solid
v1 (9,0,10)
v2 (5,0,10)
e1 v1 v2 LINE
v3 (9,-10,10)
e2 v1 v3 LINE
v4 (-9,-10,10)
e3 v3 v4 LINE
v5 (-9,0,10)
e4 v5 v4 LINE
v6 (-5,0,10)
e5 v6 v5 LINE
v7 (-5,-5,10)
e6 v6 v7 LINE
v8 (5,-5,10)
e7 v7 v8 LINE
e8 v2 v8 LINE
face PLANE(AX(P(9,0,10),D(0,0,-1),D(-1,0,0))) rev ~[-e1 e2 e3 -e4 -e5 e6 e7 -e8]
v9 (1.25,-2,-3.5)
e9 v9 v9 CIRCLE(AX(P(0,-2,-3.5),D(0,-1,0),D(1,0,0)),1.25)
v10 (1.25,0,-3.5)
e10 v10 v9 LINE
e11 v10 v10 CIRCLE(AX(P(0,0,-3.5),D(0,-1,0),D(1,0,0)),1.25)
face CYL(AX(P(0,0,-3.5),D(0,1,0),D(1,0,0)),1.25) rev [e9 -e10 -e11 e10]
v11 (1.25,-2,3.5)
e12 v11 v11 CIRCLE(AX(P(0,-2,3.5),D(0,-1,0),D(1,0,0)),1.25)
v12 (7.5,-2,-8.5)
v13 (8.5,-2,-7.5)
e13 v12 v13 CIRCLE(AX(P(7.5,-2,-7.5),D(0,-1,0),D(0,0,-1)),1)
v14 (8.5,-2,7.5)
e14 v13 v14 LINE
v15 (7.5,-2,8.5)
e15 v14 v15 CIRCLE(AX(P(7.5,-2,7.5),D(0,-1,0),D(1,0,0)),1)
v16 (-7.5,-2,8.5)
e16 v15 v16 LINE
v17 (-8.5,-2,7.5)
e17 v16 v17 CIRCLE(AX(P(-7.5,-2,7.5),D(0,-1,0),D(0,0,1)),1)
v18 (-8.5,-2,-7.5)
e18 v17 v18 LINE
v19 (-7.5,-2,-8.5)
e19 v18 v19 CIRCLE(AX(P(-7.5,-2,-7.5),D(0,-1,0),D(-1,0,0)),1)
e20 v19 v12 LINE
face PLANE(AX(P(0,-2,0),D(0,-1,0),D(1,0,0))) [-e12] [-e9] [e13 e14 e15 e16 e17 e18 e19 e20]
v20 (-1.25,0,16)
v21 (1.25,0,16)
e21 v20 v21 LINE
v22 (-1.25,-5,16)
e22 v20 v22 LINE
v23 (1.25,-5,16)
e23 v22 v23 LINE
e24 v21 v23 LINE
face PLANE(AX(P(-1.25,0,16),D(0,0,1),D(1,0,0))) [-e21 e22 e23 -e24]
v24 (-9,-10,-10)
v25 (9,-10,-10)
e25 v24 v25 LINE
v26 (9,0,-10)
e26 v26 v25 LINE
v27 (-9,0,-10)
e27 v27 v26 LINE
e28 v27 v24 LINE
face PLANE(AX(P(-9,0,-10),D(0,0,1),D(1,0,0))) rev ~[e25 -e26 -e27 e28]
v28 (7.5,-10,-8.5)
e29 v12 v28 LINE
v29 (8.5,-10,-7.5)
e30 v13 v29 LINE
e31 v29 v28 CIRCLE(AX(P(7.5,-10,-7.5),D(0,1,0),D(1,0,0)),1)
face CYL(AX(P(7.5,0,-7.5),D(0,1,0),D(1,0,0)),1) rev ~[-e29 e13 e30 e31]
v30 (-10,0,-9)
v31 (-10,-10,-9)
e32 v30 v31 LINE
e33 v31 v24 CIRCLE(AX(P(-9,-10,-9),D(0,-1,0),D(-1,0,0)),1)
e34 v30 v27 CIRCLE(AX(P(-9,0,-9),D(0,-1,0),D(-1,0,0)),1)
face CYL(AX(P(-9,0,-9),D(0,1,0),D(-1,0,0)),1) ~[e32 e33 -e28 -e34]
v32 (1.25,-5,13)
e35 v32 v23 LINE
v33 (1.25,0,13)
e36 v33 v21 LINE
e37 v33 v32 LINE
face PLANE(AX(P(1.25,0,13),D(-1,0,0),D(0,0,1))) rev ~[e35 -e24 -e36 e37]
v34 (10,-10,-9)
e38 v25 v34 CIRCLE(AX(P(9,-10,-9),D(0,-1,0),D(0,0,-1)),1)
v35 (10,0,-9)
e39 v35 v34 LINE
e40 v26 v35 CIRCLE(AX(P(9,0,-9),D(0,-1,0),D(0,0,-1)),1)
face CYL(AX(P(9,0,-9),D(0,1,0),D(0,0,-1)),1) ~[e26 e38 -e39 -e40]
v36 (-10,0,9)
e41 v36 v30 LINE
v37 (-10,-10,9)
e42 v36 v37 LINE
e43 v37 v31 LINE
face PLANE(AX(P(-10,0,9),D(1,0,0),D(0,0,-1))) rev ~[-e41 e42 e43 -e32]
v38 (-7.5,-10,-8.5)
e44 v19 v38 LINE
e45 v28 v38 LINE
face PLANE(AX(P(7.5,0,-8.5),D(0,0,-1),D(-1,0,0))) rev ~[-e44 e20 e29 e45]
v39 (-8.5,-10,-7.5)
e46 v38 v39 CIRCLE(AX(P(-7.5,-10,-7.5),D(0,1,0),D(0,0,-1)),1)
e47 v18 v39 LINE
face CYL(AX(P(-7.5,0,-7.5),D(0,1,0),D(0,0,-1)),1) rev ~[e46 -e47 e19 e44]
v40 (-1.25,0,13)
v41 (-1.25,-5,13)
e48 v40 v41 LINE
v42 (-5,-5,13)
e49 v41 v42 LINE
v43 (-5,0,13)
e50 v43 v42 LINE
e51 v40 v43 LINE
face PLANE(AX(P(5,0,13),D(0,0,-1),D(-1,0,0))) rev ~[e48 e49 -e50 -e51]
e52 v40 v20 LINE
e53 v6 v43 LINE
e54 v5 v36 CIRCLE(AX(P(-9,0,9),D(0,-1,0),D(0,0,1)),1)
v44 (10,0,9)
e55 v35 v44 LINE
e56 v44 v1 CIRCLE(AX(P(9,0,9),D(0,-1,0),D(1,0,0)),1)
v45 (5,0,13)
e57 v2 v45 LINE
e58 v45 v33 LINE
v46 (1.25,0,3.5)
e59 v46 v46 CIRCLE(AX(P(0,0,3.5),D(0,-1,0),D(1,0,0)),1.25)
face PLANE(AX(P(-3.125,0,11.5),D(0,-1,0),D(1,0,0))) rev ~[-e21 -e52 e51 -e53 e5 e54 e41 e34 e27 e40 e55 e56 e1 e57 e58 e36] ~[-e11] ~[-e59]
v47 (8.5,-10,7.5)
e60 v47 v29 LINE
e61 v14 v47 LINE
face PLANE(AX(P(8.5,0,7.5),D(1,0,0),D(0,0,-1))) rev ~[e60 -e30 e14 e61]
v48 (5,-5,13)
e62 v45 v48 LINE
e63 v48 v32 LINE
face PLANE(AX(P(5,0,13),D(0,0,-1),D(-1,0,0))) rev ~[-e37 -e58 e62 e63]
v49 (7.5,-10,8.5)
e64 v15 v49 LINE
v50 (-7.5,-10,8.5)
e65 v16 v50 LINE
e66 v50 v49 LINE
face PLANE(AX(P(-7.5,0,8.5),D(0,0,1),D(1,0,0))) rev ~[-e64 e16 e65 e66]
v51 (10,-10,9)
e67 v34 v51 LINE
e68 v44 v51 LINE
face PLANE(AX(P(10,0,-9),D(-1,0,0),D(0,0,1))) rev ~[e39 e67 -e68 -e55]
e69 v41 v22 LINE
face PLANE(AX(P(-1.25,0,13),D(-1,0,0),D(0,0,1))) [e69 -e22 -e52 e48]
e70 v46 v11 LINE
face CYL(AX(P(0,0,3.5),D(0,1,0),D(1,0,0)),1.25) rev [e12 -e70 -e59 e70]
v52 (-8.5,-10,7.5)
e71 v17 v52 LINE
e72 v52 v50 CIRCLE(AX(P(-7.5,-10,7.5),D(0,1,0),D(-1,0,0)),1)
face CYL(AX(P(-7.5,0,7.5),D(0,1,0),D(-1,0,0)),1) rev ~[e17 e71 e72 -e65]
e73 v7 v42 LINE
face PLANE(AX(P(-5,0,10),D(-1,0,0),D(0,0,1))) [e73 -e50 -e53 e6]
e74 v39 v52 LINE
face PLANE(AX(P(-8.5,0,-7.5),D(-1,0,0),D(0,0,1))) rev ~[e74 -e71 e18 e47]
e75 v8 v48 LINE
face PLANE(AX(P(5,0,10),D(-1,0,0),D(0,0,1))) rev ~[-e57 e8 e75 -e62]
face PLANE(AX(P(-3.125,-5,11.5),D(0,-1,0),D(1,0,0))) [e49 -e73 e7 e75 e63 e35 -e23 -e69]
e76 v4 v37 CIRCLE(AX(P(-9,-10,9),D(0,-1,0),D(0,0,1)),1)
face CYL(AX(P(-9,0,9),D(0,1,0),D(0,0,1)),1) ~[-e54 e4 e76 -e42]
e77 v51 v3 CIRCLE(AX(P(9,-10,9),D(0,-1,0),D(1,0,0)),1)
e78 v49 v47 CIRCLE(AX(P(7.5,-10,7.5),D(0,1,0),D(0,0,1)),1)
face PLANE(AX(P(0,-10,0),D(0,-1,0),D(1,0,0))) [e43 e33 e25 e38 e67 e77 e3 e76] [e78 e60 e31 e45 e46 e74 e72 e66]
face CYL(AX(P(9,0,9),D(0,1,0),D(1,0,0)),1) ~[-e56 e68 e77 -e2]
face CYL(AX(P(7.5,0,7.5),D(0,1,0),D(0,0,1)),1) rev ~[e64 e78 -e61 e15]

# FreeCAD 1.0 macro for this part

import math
import FreeCAD as App
import Part
import Sketcher
from FreeCAD import Vector
Q = App.Units.Quantity

doc = App.newDocument("Part")
body = doc.addObject("PartDesign::Body", "Body")

sketch1 = body.newObject("Sketcher::SketchObject", "Sketch")
sketch1.AttachmentSupport = (doc.getObject("XZ_Plane"), [""])
sketch1.MapMode = "FlatFace"
sketch1.addGeometry(Part.LineSegment(Vector(-1.2, 16, 0), Vector(-1.2, 13, 0)), False)
sketch1.addGeometry(Part.LineSegment(Vector(-1.2, 13, 0), Vector(1.2, 13, 0)), False)
sketch1.addGeometry(Part.LineSegment(Vector(1.2, 13, 0), Vector(1.2, 16, 0)), False)
sketch1.addGeometry(Part.LineSegment(Vector(1.2, 16, 0), Vector(-1.2, 16, 0)), False)
sketch1.addConstraint(Sketcher.Constraint("Coincident", 0, 2, 1, 1))
sketch1.addConstraint(Sketcher.Constraint("Coincident", 1, 2, 2, 1))
sketch1.addConstraint(Sketcher.Constraint("Coincident", 2, 2, 3, 1))
sketch1.addConstraint(Sketcher.Constraint("Coincident", 3, 2, 0, 1))
sketch1.addConstraint(Sketcher.Constraint("Vertical", 0))
sketch1.addConstraint(Sketcher.Constraint("Horizontal", 1))
sketch1.addConstraint(Sketcher.Constraint("Vertical", 2))
sketch1.addConstraint(Sketcher.Constraint("Horizontal", 3))
sketch1.addConstraint(Sketcher.Constraint("DistanceY", 0, 2, 0, 1, Q("3 mm")))
sketch1.addConstraint(Sketcher.Constraint("DistanceX", 1, 1, 1, 2, Q("2.5 mm")))
sketch1.addConstraint(Sketcher.Constraint("DistanceY", -1, 1, 0, 2, Q("13 mm")))
sketch1.addConstraint(Sketcher.Constraint("DistanceX", 0, 2, -1, 1, Q("1.25 mm")))
pad1 = body.newObject("PartDesign::Pad", "Pad")
pad1.Profile = sketch1
pad1.Length = 5
body2 = doc.addObject("PartDesign::Body", "Body001")

sketch2 = body2.newObject("Sketcher::SketchObject", "Sketch001")
sketch2.AttachmentSupport = (doc.getObject("XZ_Plane001"), [""])
sketch2.MapMode = "FlatFace"
sketch2.addGeometry(Part.LineSegment(Vector(-7.5, -8.5, 0), Vector(7.5, -8.5, 0)), False)
sketch2.addGeometry(Part.ArcOfCircle(Part.Circle(Vector(7.5, -7.5, 0), Vector(0, 0, 1), 1), math.radians(-90), math.radians(0)), False)
sketch2.addGeometry(Part.LineSegment(Vector(8.5, -7.5, 0), Vector(8.5, 7.5, 0)), False)
sketch2.addGeometry(Part.ArcOfCircle(Part.Circle(Vector(7.5, 7.5, 0), Vector(0, 0, 1), 1), math.radians(0), math.radians(90)), False)
sketch2.addGeometry(Part.LineSegment(Vector(7.5, 8.5, 0), Vector(-7.5, 8.5, 0)), False)
sketch2.addGeometry(Part.ArcOfCircle(Part.Circle(Vector(-7.5, 7.5, 0), Vector(0, 0, 1), 1), math.radians(90), math.radians(180)), False)
sketch2.addGeometry(Part.LineSegment(Vector(-8.5, 7.5, 0), Vector(-8.5, -7.5, 0)), False)
sketch2.addGeometry(Part.ArcOfCircle(Part.Circle(Vector(-7.5, -7.5, 0), Vector(0, 0, 1), 1), math.radians(180), math.radians(270)), False)
sketch2.addGeometry(Part.Circle(Vector(0, -3.5, 0), Vector(0, 0, 1), 1.2), False)
sketch2.addGeometry(Part.Circle(Vector(0, 3.5, 0), Vector(0, 0, 1), 1.2), False)
sketch2.addConstraint(Sketcher.Constraint("Tangent", 0, 2, 1, 1))
sketch2.addConstraint(Sketcher.Constraint("Tangent", 1, 2, 2, 1))
sketch2.addConstraint(Sketcher.Constraint("Tangent", 2, 2, 3, 1))
sketch2.addConstraint(Sketcher.Constraint("Tangent", 3, 2, 4, 1))
sketch2.addConstraint(Sketcher.Constraint("Tangent", 4, 2, 5, 1))
sketch2.addConstraint(Sketcher.Constraint("Tangent", 5, 2, 6, 1))
sketch2.addConstraint(Sketcher.Constraint("Tangent", 6, 2, 7, 1))
sketch2.addConstraint(Sketcher.Constraint("Tangent", 7, 2, 0, 1))
sketch2.addConstraint(Sketcher.Constraint("Horizontal", 0))
sketch2.addConstraint(Sketcher.Constraint("Vertical", 2))
sketch2.addConstraint(Sketcher.Constraint("Horizontal", 4))
sketch2.addConstraint(Sketcher.Constraint("Vertical", 6))
sketch2.addConstraint(Sketcher.Constraint("Equal", 1, 3))
sketch2.addConstraint(Sketcher.Constraint("Equal", 3, 5))
sketch2.addConstraint(Sketcher.Constraint("Equal", 5, 7))
sketch2.addConstraint(Sketcher.Constraint("Equal", 8, 9))
sketch2.addConstraint(Sketcher.Constraint("Symmetric", 1, 3, 5, 3, -1, 1))
sketch2.addConstraint(Sketcher.Constraint("Symmetric", 8, 3, 9, 3, -1, 1))
sketch2.addConstraint(Sketcher.Constraint("PointOnObject", 8, 3, -2))
sketch2.addConstraint(Sketcher.Constraint("Equal", 4, 2))
sketch2.addConstraint(Sketcher.Constraint("Radius", 1, Q("1 mm")))
sketch2.addConstraint(Sketcher.Constraint("Diameter", 8, Q("2.5 mm")))
sketch2.addConstraint(Sketcher.Constraint("DistanceX", 0, 1, 0, 2, Q("15 mm")))
sketch2.addConstraint(Sketcher.Constraint("DistanceY", 1, 3, 8, 3, Q("4 mm")))
pad2 = body2.newObject("PartDesign::Pad", "Pad001")
pad2.Profile = sketch2
pad2.Length = 2

sketch3 = body2.newObject("Sketcher::SketchObject", "Sketch002")
sketch3.AttachmentSupport = (doc.getObject("XZ_Plane001"), [""])
sketch3.MapMode = "FlatFace"
sketch3.addGeometry(Part.ArcOfCircle(Part.Circle(Vector(-9, 9, 0), Vector(0, 0, 1), 1), math.radians(90), math.radians(180)), False)
sketch3.addGeometry(Part.LineSegment(Vector(-10, 9, 0), Vector(-10, -9, 0)), False)
sketch3.addGeometry(Part.ArcOfCircle(Part.Circle(Vector(-9, -9, 0), Vector(0, 0, 1), 1), math.radians(180), math.radians(270)), False)
sketch3.addGeometry(Part.LineSegment(Vector(-9, -10, 0), Vector(9, -10, 0)), False)
sketch3.addGeometry(Part.ArcOfCircle(Part.Circle(Vector(9, -9, 0), Vector(0, 0, 1), 1), math.radians(-90), math.radians(0)), False)
sketch3.addGeometry(Part.LineSegment(Vector(10, -9, 0), Vector(10, 9, 0)), False)
sketch3.addGeometry(Part.ArcOfCircle(Part.Circle(Vector(9, 9, 0), Vector(0, 0, 1), 1), math.radians(0), math.radians(90)), False)
sketch3.addGeometry(Part.LineSegment(Vector(9, 10, 0), Vector(-9, 10, 0)), False)
sketch3.addGeometry(Part.LineSegment(Vector(8.5, 7.5, 0), Vector(8.5, -7.5, 0)), False)
sketch3.addGeometry(Part.ArcOfCircle(Part.Circle(Vector(7.5, -7.5, 0), Vector(0, 0, 1), 1), math.radians(-90), math.radians(0)), False)
sketch3.addGeometry(Part.LineSegment(Vector(7.5, -8.5, 0), Vector(-7.5, -8.5, 0)), False)
sketch3.addGeometry(Part.ArcOfCircle(Part.Circle(Vector(-7.5, -7.5, 0), Vector(0, 0, 1), 1), math.radians(180), math.radians(270)), False)
sketch3.addGeometry(Part.LineSegment(Vector(-8.5, -7.5, 0), Vector(-8.5, 7.5, 0)), False)
sketch3.addGeometry(Part.ArcOfCircle(Part.Circle(Vector(-7.5, 7.5, 0), Vector(0, 0, 1), 1), math.radians(90), math.radians(180)), False)
sketch3.addGeometry(Part.LineSegment(Vector(-7.5, 8.5, 0), Vector(7.5, 8.5, 0)), False)
sketch3.addGeometry(Part.ArcOfCircle(Part.Circle(Vector(7.5, 7.5, 0), Vector(0, 0, 1), 1), math.radians(0), math.radians(90)), False)
sketch3.addConstraint(Sketcher.Constraint("Tangent", 0, 2, 1, 1))
sketch3.addConstraint(Sketcher.Constraint("Tangent", 1, 2, 2, 1))
sketch3.addConstraint(Sketcher.Constraint("Tangent", 2, 2, 3, 1))
sketch3.addConstraint(Sketcher.Constraint("Tangent", 3, 2, 4, 1))
sketch3.addConstraint(Sketcher.Constraint("Tangent", 4, 2, 5, 1))
sketch3.addConstraint(Sketcher.Constraint("Tangent", 5, 2, 6, 1))
sketch3.addConstraint(Sketcher.Constraint("Tangent", 6, 2, 7, 1))
sketch3.addConstraint(Sketcher.Constraint("Tangent", 7, 2, 0, 1))
sketch3.addConstraint(Sketcher.Constraint("Tangent", 8, 2, 9, 2))
sketch3.addConstraint(Sketcher.Constraint("Tangent", 9, 1, 10, 1))
sketch3.addConstraint(Sketcher.Constraint("Tangent", 10, 2, 11, 2))
sketch3.addConstraint(Sketcher.Constraint("Tangent", 11, 1, 12, 1))
sketch3.addConstraint(Sketcher.Constraint("Tangent", 12, 2, 13, 2))
sketch3.addConstraint(Sketcher.Constraint("Tangent", 13, 1, 14, 1))
sketch3.addConstraint(Sketcher.Constraint("Tangent", 14, 2, 15, 2))
sketch3.addConstraint(Sketcher.Constraint("Tangent", 15, 1, 8, 1))
sketch3.addConstraint(Sketcher.Constraint("Vertical", 1))
sketch3.addConstraint(Sketcher.Constraint("Horizontal", 3))
sketch3.addConstraint(Sketcher.Constraint("Vertical", 5))
sketch3.addConstraint(Sketcher.Constraint("Horizontal", 7))
sketch3.addConstraint(Sketcher.Constraint("Vertical", 8))
sketch3.addConstraint(Sketcher.Constraint("Horizontal", 10))
sketch3.addConstraint(Sketcher.Constraint("Vertical", 12))
sketch3.addConstraint(Sketcher.Constraint("Horizontal", 14))
sketch3.addConstraint(Sketcher.Constraint("Equal", 0, 2))
sketch3.addConstraint(Sketcher.Constraint("Equal", 2, 4))
sketch3.addConstraint(Sketcher.Constraint("Equal", 4, 6))
sketch3.addConstraint(Sketcher.Constraint("Equal", 6, 9))
sketch3.addConstraint(Sketcher.Constraint("Equal", 9, 11))
sketch3.addConstraint(Sketcher.Constraint("Equal", 11, 13))
sketch3.addConstraint(Sketcher.Constraint("Equal", 13, 15))
sketch3.addConstraint(Sketcher.Constraint("Symmetric", 0, 3, 4, 3, -1, 1))
sketch3.addConstraint(Sketcher.Constraint("Symmetric", 9, 3, 13, 3, -1, 1))
sketch3.addConstraint(Sketcher.Constraint("Equal", 7, 1))
sketch3.addConstraint(Sketcher.Constraint("Equal", 14, 8))
sketch3.addConstraint(Sketcher.Constraint("Radius", 0, Q("1 mm")))
sketch3.addConstraint(Sketcher.Constraint("DistanceX", 3, 1, 3, 2, Q("18 mm")))
sketch3.addConstraint(Sketcher.Constraint("DistanceX", 10, 2, 10, 1, Q("15 mm")))
pad3 = body2.newObject("PartDesign::Pad", "Pad002")
pad3.Profile = sketch3
pad3.Length = 10
body.AllowCompound = True
doc.recompute()

boolean = body.newObject("PartDesign::Boolean", "Boolean")
boolean.Type = "Fuse"
boolean.addObjects([body2])

sketch4 = body.newObject("Sketcher::SketchObject", "Sketch003")
sketch4.AttachmentSupport = (doc.getObject("XZ_Plane"), [""])
sketch4.MapMode = "FlatFace"
sketch4.addGeometry(Part.LineSegment(Vector(-5, 13, 0), Vector(-5, 10, 0)), False)
sketch4.addGeometry(Part.LineSegment(Vector(-5, 10, 0), Vector(5, 10, 0)), False)
sketch4.addGeometry(Part.LineSegment(Vector(5, 10, 0), Vector(5, 13, 0)), False)
sketch4.addGeometry(Part.LineSegment(Vector(5, 13, 0), Vector(-5, 13, 0)), False)
sketch4.addConstraint(Sketcher.Constraint("Coincident", 0, 2, 1, 1))
sketch4.addConstraint(Sketcher.Constraint("Coincident", 1, 2, 2, 1))
sketch4.addConstraint(Sketcher.Constraint("Coincident", 2, 2, 3, 1))
sketch4.addConstraint(Sketcher.Constraint("Coincident", 3, 2, 0, 1))
sketch4.addConstraint(Sketcher.Constraint("Vertical", 0))
sketch4.addConstraint(Sketcher.Constraint("Horizontal", 1))
sketch4.addConstraint(Sketcher.Constraint("Vertical", 2))
sketch4.addConstraint(Sketcher.Constraint("Horizontal", 3))
sketch4.addConstraint(Sketcher.Constraint("DistanceX", 1, 1, 1, 2, Q("10 mm")))
sketch4.addConstraint(Sketcher.Constraint("DistanceY", 0, 2, 0, 1, Q("3 mm")))
sketch4.addConstraint(Sketcher.Constraint("DistanceX", 0, 2, -1, 1, Q("5 mm")))
sketch4.addConstraint(Sketcher.Constraint("DistanceY", -1, 1, 0, 2, Q("10 mm")))
pad4 = body.newObject("PartDesign::Pad", "Pad003")
pad4.Profile = sketch4
pad4.Length = 5

doc.recompute()
